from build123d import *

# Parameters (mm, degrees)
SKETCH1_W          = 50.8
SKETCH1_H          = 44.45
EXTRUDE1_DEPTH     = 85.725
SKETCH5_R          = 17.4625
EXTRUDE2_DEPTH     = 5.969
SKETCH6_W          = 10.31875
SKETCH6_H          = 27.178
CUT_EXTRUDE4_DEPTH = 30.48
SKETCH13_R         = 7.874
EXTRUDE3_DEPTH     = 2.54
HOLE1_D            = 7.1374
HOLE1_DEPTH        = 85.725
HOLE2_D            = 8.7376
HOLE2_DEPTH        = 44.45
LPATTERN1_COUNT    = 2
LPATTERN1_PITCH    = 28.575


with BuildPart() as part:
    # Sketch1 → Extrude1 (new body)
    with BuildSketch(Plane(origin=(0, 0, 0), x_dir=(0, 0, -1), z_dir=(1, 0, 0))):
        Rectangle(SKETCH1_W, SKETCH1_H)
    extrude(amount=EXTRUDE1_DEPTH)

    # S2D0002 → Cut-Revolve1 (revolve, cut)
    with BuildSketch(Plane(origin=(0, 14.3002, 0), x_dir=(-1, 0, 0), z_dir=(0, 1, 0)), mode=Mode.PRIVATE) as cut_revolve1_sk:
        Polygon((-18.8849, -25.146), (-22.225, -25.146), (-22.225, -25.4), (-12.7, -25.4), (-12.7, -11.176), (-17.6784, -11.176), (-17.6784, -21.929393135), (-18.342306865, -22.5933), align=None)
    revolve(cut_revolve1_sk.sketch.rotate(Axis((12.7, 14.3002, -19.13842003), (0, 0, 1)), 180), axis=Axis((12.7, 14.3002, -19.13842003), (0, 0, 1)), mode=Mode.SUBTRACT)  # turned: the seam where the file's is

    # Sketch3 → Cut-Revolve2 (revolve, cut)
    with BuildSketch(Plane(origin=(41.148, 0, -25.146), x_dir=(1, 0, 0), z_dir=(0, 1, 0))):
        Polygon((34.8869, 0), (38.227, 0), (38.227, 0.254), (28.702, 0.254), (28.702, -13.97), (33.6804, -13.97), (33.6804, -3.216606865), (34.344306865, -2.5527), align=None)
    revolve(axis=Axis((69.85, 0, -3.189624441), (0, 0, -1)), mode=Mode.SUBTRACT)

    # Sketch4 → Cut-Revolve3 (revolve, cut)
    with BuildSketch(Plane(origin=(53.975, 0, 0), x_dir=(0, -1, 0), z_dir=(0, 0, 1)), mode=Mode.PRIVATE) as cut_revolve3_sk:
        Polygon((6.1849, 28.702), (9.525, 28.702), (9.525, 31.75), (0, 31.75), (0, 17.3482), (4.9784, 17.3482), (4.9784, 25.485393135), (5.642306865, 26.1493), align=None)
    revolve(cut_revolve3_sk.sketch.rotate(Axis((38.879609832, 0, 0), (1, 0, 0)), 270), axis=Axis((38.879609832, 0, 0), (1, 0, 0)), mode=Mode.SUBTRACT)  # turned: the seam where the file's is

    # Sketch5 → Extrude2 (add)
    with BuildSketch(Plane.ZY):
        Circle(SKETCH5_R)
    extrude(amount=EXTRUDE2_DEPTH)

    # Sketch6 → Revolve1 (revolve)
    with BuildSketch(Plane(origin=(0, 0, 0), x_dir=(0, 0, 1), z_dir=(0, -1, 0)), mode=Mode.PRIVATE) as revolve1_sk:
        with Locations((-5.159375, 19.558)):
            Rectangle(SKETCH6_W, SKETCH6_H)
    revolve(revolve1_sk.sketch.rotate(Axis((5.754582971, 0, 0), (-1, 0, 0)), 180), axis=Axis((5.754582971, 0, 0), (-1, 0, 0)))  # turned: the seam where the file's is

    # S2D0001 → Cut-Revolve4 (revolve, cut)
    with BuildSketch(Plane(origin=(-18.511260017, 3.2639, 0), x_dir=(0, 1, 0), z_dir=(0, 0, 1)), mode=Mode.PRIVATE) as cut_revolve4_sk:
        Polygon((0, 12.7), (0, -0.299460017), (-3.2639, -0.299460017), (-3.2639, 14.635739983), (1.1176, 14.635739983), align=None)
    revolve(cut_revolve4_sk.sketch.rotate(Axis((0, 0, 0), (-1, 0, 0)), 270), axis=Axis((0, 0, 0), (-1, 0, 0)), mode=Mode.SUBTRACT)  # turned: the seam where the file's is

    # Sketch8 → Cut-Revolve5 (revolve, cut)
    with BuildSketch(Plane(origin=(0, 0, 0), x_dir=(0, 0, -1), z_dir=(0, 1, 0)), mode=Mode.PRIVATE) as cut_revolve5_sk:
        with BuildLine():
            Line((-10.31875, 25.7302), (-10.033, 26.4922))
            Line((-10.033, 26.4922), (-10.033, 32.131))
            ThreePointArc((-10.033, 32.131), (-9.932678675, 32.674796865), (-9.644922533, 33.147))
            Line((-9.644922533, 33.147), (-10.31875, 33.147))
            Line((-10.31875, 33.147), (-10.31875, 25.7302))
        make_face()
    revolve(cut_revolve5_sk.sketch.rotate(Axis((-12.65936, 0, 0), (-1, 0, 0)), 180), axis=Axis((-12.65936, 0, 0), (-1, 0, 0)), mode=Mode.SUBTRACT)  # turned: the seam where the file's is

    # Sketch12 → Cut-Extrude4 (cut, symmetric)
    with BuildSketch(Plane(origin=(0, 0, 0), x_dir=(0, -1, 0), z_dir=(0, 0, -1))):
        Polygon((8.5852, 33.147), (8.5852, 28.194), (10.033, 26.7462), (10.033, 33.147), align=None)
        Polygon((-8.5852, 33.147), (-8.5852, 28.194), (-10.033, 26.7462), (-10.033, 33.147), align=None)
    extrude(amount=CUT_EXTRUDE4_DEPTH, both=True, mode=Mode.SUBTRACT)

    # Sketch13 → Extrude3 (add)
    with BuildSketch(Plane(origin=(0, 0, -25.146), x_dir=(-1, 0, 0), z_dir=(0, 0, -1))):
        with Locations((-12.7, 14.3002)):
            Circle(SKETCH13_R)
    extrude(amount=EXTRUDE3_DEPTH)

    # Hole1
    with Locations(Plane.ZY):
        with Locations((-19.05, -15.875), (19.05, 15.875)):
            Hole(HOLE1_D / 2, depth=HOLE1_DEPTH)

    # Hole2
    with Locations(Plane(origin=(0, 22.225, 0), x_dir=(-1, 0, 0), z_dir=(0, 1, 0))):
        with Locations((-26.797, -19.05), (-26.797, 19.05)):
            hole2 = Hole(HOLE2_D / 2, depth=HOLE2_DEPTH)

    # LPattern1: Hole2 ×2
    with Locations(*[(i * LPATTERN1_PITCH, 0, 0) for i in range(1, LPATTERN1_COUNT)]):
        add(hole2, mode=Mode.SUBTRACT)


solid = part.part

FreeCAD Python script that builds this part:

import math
import FreeCAD as App
import Part
import Sketcher
from FreeCAD import Vector
Q = App.Units.Quantity

doc = App.newDocument("Part")
body = doc.addObject("PartDesign::Body", "Body")

# Sketch on YZ plane
sketch1 = body.newObject("Sketcher::SketchObject", "Sketch")
sketch1.AttachmentSupport = (doc.getObject("YZ_Plane"), [""])
sketch1.MapMode = "FlatFace"
sketch1.addGeometry([
    Part.LineSegment(Vector(22, 25, 0), Vector(-22, 25, 0)),
    Part.LineSegment(Vector(-22, 25, 0), Vector(-22, -25, 0)),
    Part.LineSegment(Vector(-22, -25, 0), Vector(22, -25, 0)),
    Part.LineSegment(Vector(22, -25, 0), Vector(22, 25, 0)),
], False)
sketch1.addConstraint([
    Sketcher.Constraint("Coincident", 0, 2, 1, 1),
    Sketcher.Constraint("Coincident", 1, 2, 2, 1),
    Sketcher.Constraint("Coincident", 2, 2, 3, 1),
    Sketcher.Constraint("Coincident", 3, 2, 0, 1),
    Sketcher.Constraint("Horizontal", 0),
    Sketcher.Constraint("Vertical", 1),
    Sketcher.Constraint("Horizontal", 2),
    Sketcher.Constraint("Vertical", 3),
    Sketcher.Constraint("Symmetric", 0, 2, 2, 2, -1, 1),
    Sketcher.Constraint("DistanceY", 1, 2, 1, 1, Q("2 in")),
    Sketcher.Constraint("DistanceX", 0, 2, 0, 1, Q("1.75 in")),
])
pad1 = body.newObject("PartDesign::Pad", "Pad")
pad1.Profile = sketch1
pad1.Length = Q("3.375 in")

# Sketch on XZ plane
sketch2 = body.newObject("Sketcher::SketchObject", "Sketch001")
sketch2.AttachmentSupport = (doc.getObject("XZ_Plane"), [""])
sketch2.MapMode = "FlatFace"
sketch2.AttachmentOffset = App.Placement(Vector(0, 0, -0.563 * 25.4), App.Rotation())
sketch2.addGeometry([
    Part.LineSegment(Vector(18.88, -25.15, 0), Vector(22.23, -25.15, 0)),  # 0
    Part.LineSegment(Vector(22.23, -25.15, 0), Vector(22.23, -25.4, 0)),  # 1
    Part.LineSegment(Vector(22.23, -25.4, 0), Vector(12.7, -25.4, 0)),  # 2
    Part.LineSegment(Vector(12.7, -25.4, 0), Vector(12.7, -11.18, 0)),  # 3
    Part.LineSegment(Vector(12.7, -11.18, 0), Vector(17.68, -11.18, 0)),  # 4
    Part.LineSegment(Vector(17.68, -11.18, 0), Vector(17.68, -21.93, 0)),  # 5
    Part.LineSegment(Vector(17.68, -21.93, 0), Vector(18.34, -22.59, 0)),  # 6
    Part.LineSegment(Vector(18.34, -22.59, 0), Vector(18.88, -25.15, 0)),  # 7
], False)
sketch2.addGeometry(Part.LineSegment(Vector(12.7, -25.4, 0), Vector(12.7, -11.18, 0)), True)  # axis
sketch2.addConstraint([
    Sketcher.Constraint("Coincident", 0, 2, 1, 1),
    Sketcher.Constraint("Coincident", 1, 2, 2, 1),
    Sketcher.Constraint("Coincident", 2, 2, 3, 1),
    Sketcher.Constraint("Coincident", 3, 2, 4, 1),
    Sketcher.Constraint("Coincident", 4, 2, 5, 1),
    Sketcher.Constraint("Coincident", 5, 2, 6, 1),
    Sketcher.Constraint("Coincident", 6, 2, 7, 1),
    Sketcher.Constraint("Coincident", 7, 2, 0, 1),
    Sketcher.Constraint("Horizontal", 0),
    Sketcher.Constraint("Vertical", 1),
    Sketcher.Constraint("Horizontal", 2),
    Sketcher.Constraint("Vertical", 3),
    Sketcher.Constraint("Horizontal", 4),
    Sketcher.Constraint("Vertical", 5),
    Sketcher.Constraint("Vertical", 8),
    Sketcher.Constraint("Coincident", 8, 1, 2, 2),
    Sketcher.Constraint("Horizontal", 4, 2, 8, 2),
    Sketcher.Constraint("DistanceY", 1, 2, -1, 1, Q("1 in")),
    Sketcher.Constraint("Angle", 6, Q("-45 deg")),
    Sketcher.Constraint("Angle", 7, Q("-78 deg")),
    Sketcher.Constraint("DistanceY", 1, 2, 1, 1, Q("0.01 in")),
    Sketcher.Constraint("DistanceY", 3, 1, 3, 2, Q("0.56 in")),
    Sketcher.Constraint("DistanceX", -1, 1, 2, 2, Q("0.5 in")),
    Sketcher.Constraint("DistanceX", 2, 2, 2, 1, Q("0.375 in")),
    Sketcher.Constraint("DistanceX", 4, 1, 4, 2, Q("0.196 in")),
    Sketcher.Constraint("DistanceX", 0, 1, 0, 2, Q("0.1315 in")),
    Sketcher.Constraint("DistanceY", 6, 2, -1, 1, Q("0.8895 in")),
])
groove = body.newObject("PartDesign::Groove", "Groove")
groove.Profile = sketch2
groove.ReferenceAxis = (sketch2, ["Axis0"])
groove.Angle = 360

# Sketch on XZ plane
sketch3 = body.newObject("Sketcher::SketchObject", "Sketch002")
sketch3.AttachmentSupport = (doc.getObject("XZ_Plane"), [""])
sketch3.MapMode = "FlatFace"
sketch3.addGeometry([
    Part.LineSegment(Vector(76.03, -25.15, 0), Vector(79.38, -25.15, 0)),  # 0
    Part.LineSegment(Vector(79.38, -25.15, 0), Vector(79.38, -25.4, 0)),  # 1
    Part.LineSegment(Vector(79.38, -25.4, 0), Vector(69.85, -25.4, 0)),  # 2
    Part.LineSegment(Vector(69.85, -25.4, 0), Vector(69.85, -11.18, 0)),  # 3
    Part.LineSegment(Vector(69.85, -11.18, 0), Vector(74.83, -11.18, 0)),  # 4
    Part.LineSegment(Vector(74.83, -11.18, 0), Vector(74.83, -21.93, 0)),  # 5
    Part.LineSegment(Vector(74.83, -21.93, 0), Vector(75.49, -22.59, 0)),  # 6
    Part.LineSegment(Vector(75.49, -22.59, 0), Vector(76.03, -25.15, 0)),  # 7
], False)
sketch3.addGeometry(Part.LineSegment(Vector(69.85, -11.18, 0), Vector(69.85, -25.4, 0)), True)  # axis
sketch3.addConstraint([
    Sketcher.Constraint("Coincident", 0, 2, 1, 1),
    Sketcher.Constraint("Coincident", 1, 2, 2, 1),
    Sketcher.Constraint("Coincident", 2, 2, 3, 1),
    Sketcher.Constraint("Coincident", 3, 2, 4, 1),
    Sketcher.Constraint("Coincident", 4, 2, 5, 1),
    Sketcher.Constraint("Coincident", 5, 2, 6, 1),
    Sketcher.Constraint("Coincident", 6, 2, 7, 1),
    Sketcher.Constraint("Coincident", 7, 2, 0, 1),
    Sketcher.Constraint("Horizontal", 0),
    Sketcher.Constraint("Vertical", 1),
    Sketcher.Constraint("Horizontal", 2),
    Sketcher.Constraint("Vertical", 3),
    Sketcher.Constraint("Horizontal", 4),
    Sketcher.Constraint("Vertical", 5),
    Sketcher.Constraint("Vertical", 8),
    Sketcher.Constraint("Coincident", 8, 1, 3, 2),
    Sketcher.Constraint("Horizontal", 1, 2, 8, 2),
    Sketcher.Constraint("DistanceY", 1, 2, -1, 1, Q("1 in")),
    Sketcher.Constraint("Angle", 6, Q("-45 deg")),
    Sketcher.Constraint("Angle", 7, Q("-78 deg")),
    Sketcher.Constraint("DistanceY", 1, 2, 1, 1, Q("0.01 in")),
    Sketcher.Constraint("DistanceY", 3, 1, 3, 2, Q("0.56 in")),
    Sketcher.Constraint("DistanceX", 2, 2, 2, 1, Q("0.375 in")),
    Sketcher.Constraint("DistanceX", 4, 1, 4, 2, Q("0.196 in")),
    Sketcher.Constraint("DistanceX", -1, 1, 2, 2, Q("2.75 in")),
    Sketcher.Constraint("DistanceX", 0, 1, 0, 2, Q("0.1315 in")),
    Sketcher.Constraint("DistanceY", 6, 2, -1, 1, Q("0.8895 in")),
])
groove2 = body.newObject("PartDesign::Groove", "Groove001")
groove2.Profile = sketch3
groove2.ReferenceAxis = (sketch3, ["Axis0"])
groove2.Angle = 360

# Sketch on XY plane
sketch4 = body.newObject("Sketcher::SketchObject", "Sketch003")
sketch4.AttachmentSupport = (doc.getObject("XY_Plane"), [""])
sketch4.MapMode = "FlatFace"
sketch4.addGeometry([
    Part.LineSegment(Vector(82.7, -6.2, 0), Vector(82.7, -9.5, 0)),  # 0
    Part.LineSegment(Vector(82.7, -9.5, 0), Vector(85.7, -9.5, 0)),  # 1
    Part.LineSegment(Vector(85.7, -9.5, 0), Vector(85.7, 0, 0)),  # 2
    Part.LineSegment(Vector(85.7, 0, 0), Vector(71.3, 0, 0)),  # 3
    Part.LineSegment(Vector(71.3, 0, 0), Vector(71.3, -5, 0)),  # 4
    Part.LineSegment(Vector(71.3, -5, 0), Vector(79.5, -5, 0)),  # 5
    Part.LineSegment(Vector(79.5, -5, 0), Vector(80.1, -5.6, 0)),  # 6
    Part.LineSegment(Vector(80.1, -5.6, 0), Vector(82.7, -6.2, 0)),  # 7
], False)
sketch4.addConstraint([
    Sketcher.Constraint("Coincident", 0, 2, 1, 1),
    Sketcher.Constraint("Coincident", 1, 2, 2, 1),
    Sketcher.Constraint("Coincident", 2, 2, 3, 1),
    Sketcher.Constraint("Coincident", 3, 2, 4, 1),
    Sketcher.Constraint("Coincident", 4, 2, 5, 1),
    Sketcher.Constraint("Coincident", 5, 2, 6, 1),
    Sketcher.Constraint("Coincident", 6, 2, 7, 1),
    Sketcher.Constraint("Coincident", 7, 2, 0, 1),
    Sketcher.Constraint("Vertical", 0),
    Sketcher.Constraint("Horizontal", 1),
    Sketcher.Constraint("Vertical", 2),
    Sketcher.Constraint("Horizontal", 3),
    Sketcher.Constraint("Vertical", 4),
    Sketcher.Constraint("Horizontal", 5),
    Sketcher.Constraint("PointOnObject", 2, 2, -1),
    Sketcher.Constraint("Angle", 6, Q("-45 deg")),
    Sketcher.Constraint("Angle", 7, Q("-12 deg")),
    Sketcher.Constraint("DistanceX", 1, 1, 1, 2, Q("0.12 in")),
    Sketcher.Constraint("DistanceX", 3, 2, 3, 1, Q("0.567 in")),
    Sketcher.Constraint("DistanceY", 2, 1, 2, 2, Q("0.375 in")),
    Sketcher.Constraint("DistanceY", 4, 2, 4, 1, Q("0.196 in")),
    Sketcher.Constraint("DistanceY", 0, 2, 0, 1, Q("0.1315 in")),
    Sketcher.Constraint("DistanceX", -1, 1, 0, 2, Q("3.255 in")),
    Sketcher.Constraint("DistanceX", -1, 1, 6, 2, Q("3.1545 in")),
])
groove3 = body.newObject("PartDesign::Groove", "Groove002")
groove3.Profile = sketch4
groove3.ReferenceAxis = (sketch4, ["H_Axis"])
groove3.Angle = 360

# Sketch on YZ plane
sketch5 = body.newObject("Sketcher::SketchObject", "Sketch004")
sketch5.AttachmentSupport = (doc.getObject("YZ_Plane"), [""])
sketch5.MapMode = "FlatFace"
sketch5.addGeometry(Part.Circle(Vector(0, 0, 0), Vector(0, 0, 1), 17), False)
sketch5.addConstraint([
    Sketcher.Constraint("Coincident", 0, 3, -1, 1),
    Sketcher.Constraint("Diameter", 0, Q("1.375 in")),
])
pad2 = body.newObject("PartDesign::Pad", "Pad001")
pad2.Profile = sketch5
pad2.Length = Q("0.235 in")
pad2.Reversed = True

# Sketch on XZ plane
sketch6 = body.newObject("Sketcher::SketchObject", "Sketch005")
sketch6.AttachmentSupport = (doc.getObject("XZ_Plane"), [""])
sketch6.MapMode = "FlatFace"
sketch6.addGeometry([
    Part.LineSegment(Vector(-33, -10, 0), Vector(-6, -10, 0)),
    Part.LineSegment(Vector(-6, -10, 0), Vector(-6, 0, 0)),
    Part.LineSegment(Vector(-6, 0, 0), Vector(-33, 0, 0)),
    Part.LineSegment(Vector(-33, 0, 0), Vector(-33, -10, 0)),
], False)
sketch6.addConstraint([
    Sketcher.Constraint("Coincident", 0, 2, 1, 1),
    Sketcher.Constraint("Coincident", 1, 2, 2, 1),
    Sketcher.Constraint("Coincident", 2, 2, 3, 1),
    Sketcher.Constraint("Coincident", 3, 2, 0, 1),
    Sketcher.Constraint("Horizontal", 0),
    Sketcher.Constraint("Vertical", 1),
    Sketcher.Constraint("Horizontal", 2),
    Sketcher.Constraint("Vertical", 3),
    Sketcher.Constraint("PointOnObject", 1, 2, -1),
    Sketcher.Constraint("DistanceX", 0, 1, 0, 2, Q("1.07 in")),
    Sketcher.Constraint("DistanceY", 1, 1, 1, 2, Q("0.40625 in")),
    Sketcher.Constraint("DistanceX", 0, 2, -1, 1, Q("0.235 in")),
])
revolution = body.newObject("PartDesign::Revolution", "Revolution")
revolution.Profile = sketch6
revolution.ReferenceAxis = (sketch6, ["H_Axis"])
revolution.Angle = 360

# Sketch on XY plane
sketch7 = body.newObject("Sketcher::SketchObject", "Sketch006")
sketch7.AttachmentSupport = (doc.getObject("XY_Plane"), [""])
sketch7.MapMode = "FlatFace"
sketch7.addGeometry([
    Part.LineSegment(Vector(-18.2, 3.3, 0), Vector(-31.2, 3.3, 0)),  # 0
    Part.LineSegment(Vector(-31.2, 3.3, 0), Vector(-33.1, 4.4, 0)),  # 1
    Part.LineSegment(Vector(-33.1, 4.4, 0), Vector(-33.1, 0, 0)),  # 2
    Part.LineSegment(Vector(-33.1, 0, 0), Vector(-18.2, 0, 0)),  # 3
    Part.LineSegment(Vector(-18.2, 0, 0), Vector(-18.2, 3.3, 0)),  # 4
], False)
sketch7.addConstraint([
    Sketcher.Constraint("Coincident", 0, 2, 1, 1),
    Sketcher.Constraint("Coincident", 1, 2, 2, 1),
    Sketcher.Constraint("Coincident", 2, 2, 3, 1),
    Sketcher.Constraint("Coincident", 3, 2, 4, 1),
    Sketcher.Constraint("Coincident", 4, 2, 0, 1),
    Sketcher.Constraint("Horizontal", 0),
    Sketcher.Constraint("Vertical", 2),
    Sketcher.Constraint("Horizontal", 3),
    Sketcher.Constraint("Vertical", 4),
    Sketcher.Constraint("PointOnObject", 2, 2, -1),
    Sketcher.Constraint("Angle", 1, Q("150 deg")),
    Sketcher.Constraint("DistanceX", 3, 1, 3, 2, Q("0.588 in")),
    Sketcher.Constraint("Distance", 1, Q("0.088 in")),
    Sketcher.Constraint("DistanceY", 2, 2, 2, 1, Q("0.1725 in")),
    Sketcher.Constraint("DistanceX", 1, 2, -1, 1, Q("1.305 in")),
])
groove4 = body.newObject("PartDesign::Groove", "Groove003")
groove4.Profile = sketch7
groove4.ReferenceAxis = (sketch7, ["H_Axis"])
groove4.Angle = 360

# Sketch on XZ plane
sketch8 = body.newObject("Sketcher::SketchObject", "Sketch007")
sketch8.AttachmentSupport = (doc.getObject("XZ_Plane"), [""])
sketch8.MapMode = "FlatFace"
sketch8.addGeometry([
    Part.LineSegment(Vector(-25.7, 10.3, 0), Vector(-26.5, 10, 0)),  # 0
    Part.LineSegment(Vector(-26.5, 10, 0), Vector(-32.1, 10, 0)),  # 1
    Part.ArcOfCircle(Part.Circle(Vector(-32.1, 8.5, 0), Vector(0, 0, 1), 1.5), math.radians(90), math.radians(132)),  # 2
    Part.LineSegment(Vector(-33.1, 9.6, 0), Vector(-33.1, 10.3, 0)),  # 3
    Part.LineSegment(Vector(-33.1, 10.3, 0), Vector(-25.7, 10.3, 0)),  # 4
], False)
sketch8.addConstraint([
    Sketcher.Constraint("Coincident", 0, 2, 1, 1),
    Sketcher.Constraint("Tangent", 1, 2, 2, 1),
    Sketcher.Constraint("Coincident", 2, 2, 3, 1),
    Sketcher.Constraint("Coincident", 3, 2, 4, 1),
    Sketcher.Constraint("Coincident", 4, 2, 0, 1),
    Sketcher.Constraint("Horizontal", 1),
    Sketcher.Constraint("Vertical", 3),
    Sketcher.Constraint("Horizontal", 4),
    Sketcher.Constraint("Radius", 2, Q("0.06 in")),
    Sketcher.Constraint("DistanceX", 1, 2, 1, 1, Q("0.222 in")),
    Sketcher.Constraint("DistanceX", 4, 1, 4, 2, Q("0.292 in")),
    Sketcher.Constraint("DistanceX", 2, 2, 1, 2, Q("0.04 in")),
    Sketcher.Constraint("DistanceX", 2, 3, -1, 1, Q("1.265 in")),
    Sketcher.Constraint("DistanceY", -1, 1, 2, 3, Q("0.335 in")),
    Sketcher.Constraint("DistanceY", -1, 1, 3, 2, Q("0.40625 in")),
])
groove5 = body.newObject("PartDesign::Groove", "Groove004")
groove5.Profile = sketch8
groove5.ReferenceAxis = (sketch8, ["H_Axis"])
groove5.Angle = 360

# Sketch on XY plane
sketch9 = body.newObject("Sketcher::SketchObject", "Sketch008")
sketch9.AttachmentSupport = (doc.getObject("XY_Plane"), [""])
sketch9.MapMode = "FlatFace"
sketch9.addGeometry([
    Part.LineSegment(Vector(-33.1, -8.6, 0), Vector(-28.2, -8.6, 0)),  # 0
    Part.LineSegment(Vector(-28.2, -8.6, 0), Vector(-26.7, -10, 0)),  # 1
    Part.LineSegment(Vector(-26.7, -10, 0), Vector(-33.1, -10, 0)),  # 2
    Part.LineSegment(Vector(-33.1, -10, 0), Vector(-33.1, -8.6, 0)),  # 3
    Part.LineSegment(Vector(-28.2, 8.6, 0), Vector(-33.1, 8.6, 0)),  # 4
    Part.LineSegment(Vector(-33.1, 8.6, 0), Vector(-33.1, 10, 0)),  # 5
    Part.LineSegment(Vector(-33.1, 10, 0), Vector(-26.7, 10, 0)),  # 6
    Part.LineSegment(Vector(-26.7, 10, 0), Vector(-28.2, 8.6, 0)),  # 7
], False)
sketch9.addConstraint([
    Sketcher.Constraint("Coincident", 0, 2, 1, 1),
    Sketcher.Constraint("Coincident", 1, 2, 2, 1),
    Sketcher.Constraint("Coincident", 2, 2, 3, 1),
    Sketcher.Constraint("Coincident", 3, 2, 0, 1),
    Sketcher.Constraint("Coincident", 4, 2, 5, 1),
    Sketcher.Constraint("Coincident", 5, 2, 6, 1),
    Sketcher.Constraint("Coincident", 6, 2, 7, 1),
    Sketcher.Constraint("Coincident", 7, 2, 4, 1),
    Sketcher.Constraint("Horizontal", 0),
    Sketcher.Constraint("Horizontal", 2),
    Sketcher.Constraint("Vertical", 3),
    Sketcher.Constraint("Horizontal", 4),
    Sketcher.Constraint("Vertical", 5),
    Sketcher.Constraint("Horizontal", 6),
    Sketcher.Constraint("Symmetric", 3, 2, 4, 2, -1),
    Sketcher.Constraint("Symmetric", 1, 2, 6, 2, -1),
    Sketcher.Constraint("Perpendicular", 1, 7),
    Sketcher.Constraint("Vertical", 0, 2, 7, 2),
    Sketcher.Constraint("DistanceX", 0, 1, 0, 2, Q("0.195 in")),
    Sketcher.Constraint("DistanceX", 2, 2, 2, 1, Q("0.252 in")),
    Sketcher.Constraint("DistanceX", 0, 2, -1, 1, Q("1.11 in")),
    Sketcher.Constraint("DistanceY", 2, 2, 5, 2, Q("0.79 in")),
])
pocket1 = body.newObject("PartDesign::Pocket", "Pocket")
pocket1.Profile = sketch9
pocket1.Length = Q("2.4 in")
pocket1.Midplane = True

# Sketch on XY plane
sketch10 = body.newObject("Sketcher::SketchObject", "Sketch009")
sketch10.AttachmentSupport = (doc.getObject("XY_Plane"), [""])
sketch10.MapMode = "FlatFace"
sketch10.AttachmentOffset = App.Placement(Vector(0, 0, -0.99 * 25.4), App.Rotation())
sketch10.addGeometry(Part.Circle(Vector(13, 14, 0), Vector(0, 0, 1), 8), False)
sketch10.addConstraint([
    Sketcher.Constraint("Diameter", 0, Q("0.62 in")),
    Sketcher.Constraint("DistanceX", -1, 1, 0, 3, Q("0.5 in")),
    Sketcher.Constraint("DistanceY", -1, 1, 0, 3, Q("0.563 in")),
])
pad3 = body.newObject("PartDesign::Pad", "Pad002")
pad3.Profile = sketch10
pad3.Length = Q("0.1 in")
pad3.Reversed = True

# Sketch on YZ plane
sketch11 = body.newObject("Sketcher::SketchObject", "Sketch010")
sketch11.AttachmentSupport = (doc.getObject("YZ_Plane"), [""])
sketch11.MapMode = "FlatFace"
sketch11.addGeometry([
    Part.Circle(Vector(-15.9, -19.1, 0), Vector(0, 0, 1), 3.6),
    Part.Circle(Vector(15.9, 19.1, 0), Vector(0, 0, 1), 3.6),
], False)
sketch11.addConstraint([
    Sketcher.Constraint("Equal", 0, 1),
    Sketcher.Constraint("Symmetric", 0, 3, 1, 3, -1, 1),
    Sketcher.Constraint("Diameter", 0, Q("0.281 in")),
    Sketcher.Constraint("DistanceY", 0, 3, 1, 3, Q("1.5 in")),
    Sketcher.Constraint("DistanceX", 0, 3, 1, 3, Q("1.25 in")),
])
doc.recompute()
hole = body.newObject("PartDesign::Hole", "Hole")
hole.Profile = sketch11
hole.ThreadType = "None"
hole.Diameter = Q("0.281 in")
hole.DepthType = "Dimension"
hole.Depth = Q("3.375 in")
hole.DrillPoint = "Flat"
hole.Reversed = True

# Sketch on XZ plane
sketch12 = body.newObject("Sketcher::SketchObject", "Sketch011")
sketch12.AttachmentSupport = (doc.getObject("XZ_Plane"), [""])
sketch12.MapMode = "FlatFace"
sketch12.AttachmentOffset = App.Placement(Vector(0, 0, -0.875 * 25.4), App.Rotation())
sketch12.addGeometry([
    Part.Circle(Vector(26.8, -19.1, 0), Vector(0, 0, 1), 4.4),
    Part.Circle(Vector(26.8, 19.1, 0), Vector(0, 0, 1), 4.4),
], False)
sketch12.addConstraint([
    Sketcher.Constraint("Equal", 0, 1),
    Sketcher.Constraint("Symmetric", 0, 3, 1, 3, -1),
    Sketcher.Constraint("Diameter", 0, Q("0.344 in")),
    Sketcher.Constraint("DistanceY", 0, 3, 1, 3, Q("1.5 in")),
    Sketcher.Constraint("DistanceX", -1, 1, 0, 3, Q("1.055 in")),
])
doc.recompute()
hole2 = body.newObject("PartDesign::Hole", "Hole001")
hole2.Profile = sketch12
hole2.ThreadType = "None"
hole2.Diameter = Q("0.344 in")
hole2.DepthType = "Dimension"
hole2.Depth = Q("1.75 in")
hole2.DrillPoint = "Flat"
hole2.Reversed = True
doc.recompute()

linearpattern = body.newObject("PartDesign::LinearPattern", "LinearPattern")
linearpattern.Originals = [hole2]
linearpattern.Direction = (doc.getObject("X_Axis"), [""])
linearpattern.Mode = "offset"
linearpattern.Offset = Q("1.125 in")
linearpattern.Occurrences = 2
body.Tip = linearpattern

doc.recompute()
